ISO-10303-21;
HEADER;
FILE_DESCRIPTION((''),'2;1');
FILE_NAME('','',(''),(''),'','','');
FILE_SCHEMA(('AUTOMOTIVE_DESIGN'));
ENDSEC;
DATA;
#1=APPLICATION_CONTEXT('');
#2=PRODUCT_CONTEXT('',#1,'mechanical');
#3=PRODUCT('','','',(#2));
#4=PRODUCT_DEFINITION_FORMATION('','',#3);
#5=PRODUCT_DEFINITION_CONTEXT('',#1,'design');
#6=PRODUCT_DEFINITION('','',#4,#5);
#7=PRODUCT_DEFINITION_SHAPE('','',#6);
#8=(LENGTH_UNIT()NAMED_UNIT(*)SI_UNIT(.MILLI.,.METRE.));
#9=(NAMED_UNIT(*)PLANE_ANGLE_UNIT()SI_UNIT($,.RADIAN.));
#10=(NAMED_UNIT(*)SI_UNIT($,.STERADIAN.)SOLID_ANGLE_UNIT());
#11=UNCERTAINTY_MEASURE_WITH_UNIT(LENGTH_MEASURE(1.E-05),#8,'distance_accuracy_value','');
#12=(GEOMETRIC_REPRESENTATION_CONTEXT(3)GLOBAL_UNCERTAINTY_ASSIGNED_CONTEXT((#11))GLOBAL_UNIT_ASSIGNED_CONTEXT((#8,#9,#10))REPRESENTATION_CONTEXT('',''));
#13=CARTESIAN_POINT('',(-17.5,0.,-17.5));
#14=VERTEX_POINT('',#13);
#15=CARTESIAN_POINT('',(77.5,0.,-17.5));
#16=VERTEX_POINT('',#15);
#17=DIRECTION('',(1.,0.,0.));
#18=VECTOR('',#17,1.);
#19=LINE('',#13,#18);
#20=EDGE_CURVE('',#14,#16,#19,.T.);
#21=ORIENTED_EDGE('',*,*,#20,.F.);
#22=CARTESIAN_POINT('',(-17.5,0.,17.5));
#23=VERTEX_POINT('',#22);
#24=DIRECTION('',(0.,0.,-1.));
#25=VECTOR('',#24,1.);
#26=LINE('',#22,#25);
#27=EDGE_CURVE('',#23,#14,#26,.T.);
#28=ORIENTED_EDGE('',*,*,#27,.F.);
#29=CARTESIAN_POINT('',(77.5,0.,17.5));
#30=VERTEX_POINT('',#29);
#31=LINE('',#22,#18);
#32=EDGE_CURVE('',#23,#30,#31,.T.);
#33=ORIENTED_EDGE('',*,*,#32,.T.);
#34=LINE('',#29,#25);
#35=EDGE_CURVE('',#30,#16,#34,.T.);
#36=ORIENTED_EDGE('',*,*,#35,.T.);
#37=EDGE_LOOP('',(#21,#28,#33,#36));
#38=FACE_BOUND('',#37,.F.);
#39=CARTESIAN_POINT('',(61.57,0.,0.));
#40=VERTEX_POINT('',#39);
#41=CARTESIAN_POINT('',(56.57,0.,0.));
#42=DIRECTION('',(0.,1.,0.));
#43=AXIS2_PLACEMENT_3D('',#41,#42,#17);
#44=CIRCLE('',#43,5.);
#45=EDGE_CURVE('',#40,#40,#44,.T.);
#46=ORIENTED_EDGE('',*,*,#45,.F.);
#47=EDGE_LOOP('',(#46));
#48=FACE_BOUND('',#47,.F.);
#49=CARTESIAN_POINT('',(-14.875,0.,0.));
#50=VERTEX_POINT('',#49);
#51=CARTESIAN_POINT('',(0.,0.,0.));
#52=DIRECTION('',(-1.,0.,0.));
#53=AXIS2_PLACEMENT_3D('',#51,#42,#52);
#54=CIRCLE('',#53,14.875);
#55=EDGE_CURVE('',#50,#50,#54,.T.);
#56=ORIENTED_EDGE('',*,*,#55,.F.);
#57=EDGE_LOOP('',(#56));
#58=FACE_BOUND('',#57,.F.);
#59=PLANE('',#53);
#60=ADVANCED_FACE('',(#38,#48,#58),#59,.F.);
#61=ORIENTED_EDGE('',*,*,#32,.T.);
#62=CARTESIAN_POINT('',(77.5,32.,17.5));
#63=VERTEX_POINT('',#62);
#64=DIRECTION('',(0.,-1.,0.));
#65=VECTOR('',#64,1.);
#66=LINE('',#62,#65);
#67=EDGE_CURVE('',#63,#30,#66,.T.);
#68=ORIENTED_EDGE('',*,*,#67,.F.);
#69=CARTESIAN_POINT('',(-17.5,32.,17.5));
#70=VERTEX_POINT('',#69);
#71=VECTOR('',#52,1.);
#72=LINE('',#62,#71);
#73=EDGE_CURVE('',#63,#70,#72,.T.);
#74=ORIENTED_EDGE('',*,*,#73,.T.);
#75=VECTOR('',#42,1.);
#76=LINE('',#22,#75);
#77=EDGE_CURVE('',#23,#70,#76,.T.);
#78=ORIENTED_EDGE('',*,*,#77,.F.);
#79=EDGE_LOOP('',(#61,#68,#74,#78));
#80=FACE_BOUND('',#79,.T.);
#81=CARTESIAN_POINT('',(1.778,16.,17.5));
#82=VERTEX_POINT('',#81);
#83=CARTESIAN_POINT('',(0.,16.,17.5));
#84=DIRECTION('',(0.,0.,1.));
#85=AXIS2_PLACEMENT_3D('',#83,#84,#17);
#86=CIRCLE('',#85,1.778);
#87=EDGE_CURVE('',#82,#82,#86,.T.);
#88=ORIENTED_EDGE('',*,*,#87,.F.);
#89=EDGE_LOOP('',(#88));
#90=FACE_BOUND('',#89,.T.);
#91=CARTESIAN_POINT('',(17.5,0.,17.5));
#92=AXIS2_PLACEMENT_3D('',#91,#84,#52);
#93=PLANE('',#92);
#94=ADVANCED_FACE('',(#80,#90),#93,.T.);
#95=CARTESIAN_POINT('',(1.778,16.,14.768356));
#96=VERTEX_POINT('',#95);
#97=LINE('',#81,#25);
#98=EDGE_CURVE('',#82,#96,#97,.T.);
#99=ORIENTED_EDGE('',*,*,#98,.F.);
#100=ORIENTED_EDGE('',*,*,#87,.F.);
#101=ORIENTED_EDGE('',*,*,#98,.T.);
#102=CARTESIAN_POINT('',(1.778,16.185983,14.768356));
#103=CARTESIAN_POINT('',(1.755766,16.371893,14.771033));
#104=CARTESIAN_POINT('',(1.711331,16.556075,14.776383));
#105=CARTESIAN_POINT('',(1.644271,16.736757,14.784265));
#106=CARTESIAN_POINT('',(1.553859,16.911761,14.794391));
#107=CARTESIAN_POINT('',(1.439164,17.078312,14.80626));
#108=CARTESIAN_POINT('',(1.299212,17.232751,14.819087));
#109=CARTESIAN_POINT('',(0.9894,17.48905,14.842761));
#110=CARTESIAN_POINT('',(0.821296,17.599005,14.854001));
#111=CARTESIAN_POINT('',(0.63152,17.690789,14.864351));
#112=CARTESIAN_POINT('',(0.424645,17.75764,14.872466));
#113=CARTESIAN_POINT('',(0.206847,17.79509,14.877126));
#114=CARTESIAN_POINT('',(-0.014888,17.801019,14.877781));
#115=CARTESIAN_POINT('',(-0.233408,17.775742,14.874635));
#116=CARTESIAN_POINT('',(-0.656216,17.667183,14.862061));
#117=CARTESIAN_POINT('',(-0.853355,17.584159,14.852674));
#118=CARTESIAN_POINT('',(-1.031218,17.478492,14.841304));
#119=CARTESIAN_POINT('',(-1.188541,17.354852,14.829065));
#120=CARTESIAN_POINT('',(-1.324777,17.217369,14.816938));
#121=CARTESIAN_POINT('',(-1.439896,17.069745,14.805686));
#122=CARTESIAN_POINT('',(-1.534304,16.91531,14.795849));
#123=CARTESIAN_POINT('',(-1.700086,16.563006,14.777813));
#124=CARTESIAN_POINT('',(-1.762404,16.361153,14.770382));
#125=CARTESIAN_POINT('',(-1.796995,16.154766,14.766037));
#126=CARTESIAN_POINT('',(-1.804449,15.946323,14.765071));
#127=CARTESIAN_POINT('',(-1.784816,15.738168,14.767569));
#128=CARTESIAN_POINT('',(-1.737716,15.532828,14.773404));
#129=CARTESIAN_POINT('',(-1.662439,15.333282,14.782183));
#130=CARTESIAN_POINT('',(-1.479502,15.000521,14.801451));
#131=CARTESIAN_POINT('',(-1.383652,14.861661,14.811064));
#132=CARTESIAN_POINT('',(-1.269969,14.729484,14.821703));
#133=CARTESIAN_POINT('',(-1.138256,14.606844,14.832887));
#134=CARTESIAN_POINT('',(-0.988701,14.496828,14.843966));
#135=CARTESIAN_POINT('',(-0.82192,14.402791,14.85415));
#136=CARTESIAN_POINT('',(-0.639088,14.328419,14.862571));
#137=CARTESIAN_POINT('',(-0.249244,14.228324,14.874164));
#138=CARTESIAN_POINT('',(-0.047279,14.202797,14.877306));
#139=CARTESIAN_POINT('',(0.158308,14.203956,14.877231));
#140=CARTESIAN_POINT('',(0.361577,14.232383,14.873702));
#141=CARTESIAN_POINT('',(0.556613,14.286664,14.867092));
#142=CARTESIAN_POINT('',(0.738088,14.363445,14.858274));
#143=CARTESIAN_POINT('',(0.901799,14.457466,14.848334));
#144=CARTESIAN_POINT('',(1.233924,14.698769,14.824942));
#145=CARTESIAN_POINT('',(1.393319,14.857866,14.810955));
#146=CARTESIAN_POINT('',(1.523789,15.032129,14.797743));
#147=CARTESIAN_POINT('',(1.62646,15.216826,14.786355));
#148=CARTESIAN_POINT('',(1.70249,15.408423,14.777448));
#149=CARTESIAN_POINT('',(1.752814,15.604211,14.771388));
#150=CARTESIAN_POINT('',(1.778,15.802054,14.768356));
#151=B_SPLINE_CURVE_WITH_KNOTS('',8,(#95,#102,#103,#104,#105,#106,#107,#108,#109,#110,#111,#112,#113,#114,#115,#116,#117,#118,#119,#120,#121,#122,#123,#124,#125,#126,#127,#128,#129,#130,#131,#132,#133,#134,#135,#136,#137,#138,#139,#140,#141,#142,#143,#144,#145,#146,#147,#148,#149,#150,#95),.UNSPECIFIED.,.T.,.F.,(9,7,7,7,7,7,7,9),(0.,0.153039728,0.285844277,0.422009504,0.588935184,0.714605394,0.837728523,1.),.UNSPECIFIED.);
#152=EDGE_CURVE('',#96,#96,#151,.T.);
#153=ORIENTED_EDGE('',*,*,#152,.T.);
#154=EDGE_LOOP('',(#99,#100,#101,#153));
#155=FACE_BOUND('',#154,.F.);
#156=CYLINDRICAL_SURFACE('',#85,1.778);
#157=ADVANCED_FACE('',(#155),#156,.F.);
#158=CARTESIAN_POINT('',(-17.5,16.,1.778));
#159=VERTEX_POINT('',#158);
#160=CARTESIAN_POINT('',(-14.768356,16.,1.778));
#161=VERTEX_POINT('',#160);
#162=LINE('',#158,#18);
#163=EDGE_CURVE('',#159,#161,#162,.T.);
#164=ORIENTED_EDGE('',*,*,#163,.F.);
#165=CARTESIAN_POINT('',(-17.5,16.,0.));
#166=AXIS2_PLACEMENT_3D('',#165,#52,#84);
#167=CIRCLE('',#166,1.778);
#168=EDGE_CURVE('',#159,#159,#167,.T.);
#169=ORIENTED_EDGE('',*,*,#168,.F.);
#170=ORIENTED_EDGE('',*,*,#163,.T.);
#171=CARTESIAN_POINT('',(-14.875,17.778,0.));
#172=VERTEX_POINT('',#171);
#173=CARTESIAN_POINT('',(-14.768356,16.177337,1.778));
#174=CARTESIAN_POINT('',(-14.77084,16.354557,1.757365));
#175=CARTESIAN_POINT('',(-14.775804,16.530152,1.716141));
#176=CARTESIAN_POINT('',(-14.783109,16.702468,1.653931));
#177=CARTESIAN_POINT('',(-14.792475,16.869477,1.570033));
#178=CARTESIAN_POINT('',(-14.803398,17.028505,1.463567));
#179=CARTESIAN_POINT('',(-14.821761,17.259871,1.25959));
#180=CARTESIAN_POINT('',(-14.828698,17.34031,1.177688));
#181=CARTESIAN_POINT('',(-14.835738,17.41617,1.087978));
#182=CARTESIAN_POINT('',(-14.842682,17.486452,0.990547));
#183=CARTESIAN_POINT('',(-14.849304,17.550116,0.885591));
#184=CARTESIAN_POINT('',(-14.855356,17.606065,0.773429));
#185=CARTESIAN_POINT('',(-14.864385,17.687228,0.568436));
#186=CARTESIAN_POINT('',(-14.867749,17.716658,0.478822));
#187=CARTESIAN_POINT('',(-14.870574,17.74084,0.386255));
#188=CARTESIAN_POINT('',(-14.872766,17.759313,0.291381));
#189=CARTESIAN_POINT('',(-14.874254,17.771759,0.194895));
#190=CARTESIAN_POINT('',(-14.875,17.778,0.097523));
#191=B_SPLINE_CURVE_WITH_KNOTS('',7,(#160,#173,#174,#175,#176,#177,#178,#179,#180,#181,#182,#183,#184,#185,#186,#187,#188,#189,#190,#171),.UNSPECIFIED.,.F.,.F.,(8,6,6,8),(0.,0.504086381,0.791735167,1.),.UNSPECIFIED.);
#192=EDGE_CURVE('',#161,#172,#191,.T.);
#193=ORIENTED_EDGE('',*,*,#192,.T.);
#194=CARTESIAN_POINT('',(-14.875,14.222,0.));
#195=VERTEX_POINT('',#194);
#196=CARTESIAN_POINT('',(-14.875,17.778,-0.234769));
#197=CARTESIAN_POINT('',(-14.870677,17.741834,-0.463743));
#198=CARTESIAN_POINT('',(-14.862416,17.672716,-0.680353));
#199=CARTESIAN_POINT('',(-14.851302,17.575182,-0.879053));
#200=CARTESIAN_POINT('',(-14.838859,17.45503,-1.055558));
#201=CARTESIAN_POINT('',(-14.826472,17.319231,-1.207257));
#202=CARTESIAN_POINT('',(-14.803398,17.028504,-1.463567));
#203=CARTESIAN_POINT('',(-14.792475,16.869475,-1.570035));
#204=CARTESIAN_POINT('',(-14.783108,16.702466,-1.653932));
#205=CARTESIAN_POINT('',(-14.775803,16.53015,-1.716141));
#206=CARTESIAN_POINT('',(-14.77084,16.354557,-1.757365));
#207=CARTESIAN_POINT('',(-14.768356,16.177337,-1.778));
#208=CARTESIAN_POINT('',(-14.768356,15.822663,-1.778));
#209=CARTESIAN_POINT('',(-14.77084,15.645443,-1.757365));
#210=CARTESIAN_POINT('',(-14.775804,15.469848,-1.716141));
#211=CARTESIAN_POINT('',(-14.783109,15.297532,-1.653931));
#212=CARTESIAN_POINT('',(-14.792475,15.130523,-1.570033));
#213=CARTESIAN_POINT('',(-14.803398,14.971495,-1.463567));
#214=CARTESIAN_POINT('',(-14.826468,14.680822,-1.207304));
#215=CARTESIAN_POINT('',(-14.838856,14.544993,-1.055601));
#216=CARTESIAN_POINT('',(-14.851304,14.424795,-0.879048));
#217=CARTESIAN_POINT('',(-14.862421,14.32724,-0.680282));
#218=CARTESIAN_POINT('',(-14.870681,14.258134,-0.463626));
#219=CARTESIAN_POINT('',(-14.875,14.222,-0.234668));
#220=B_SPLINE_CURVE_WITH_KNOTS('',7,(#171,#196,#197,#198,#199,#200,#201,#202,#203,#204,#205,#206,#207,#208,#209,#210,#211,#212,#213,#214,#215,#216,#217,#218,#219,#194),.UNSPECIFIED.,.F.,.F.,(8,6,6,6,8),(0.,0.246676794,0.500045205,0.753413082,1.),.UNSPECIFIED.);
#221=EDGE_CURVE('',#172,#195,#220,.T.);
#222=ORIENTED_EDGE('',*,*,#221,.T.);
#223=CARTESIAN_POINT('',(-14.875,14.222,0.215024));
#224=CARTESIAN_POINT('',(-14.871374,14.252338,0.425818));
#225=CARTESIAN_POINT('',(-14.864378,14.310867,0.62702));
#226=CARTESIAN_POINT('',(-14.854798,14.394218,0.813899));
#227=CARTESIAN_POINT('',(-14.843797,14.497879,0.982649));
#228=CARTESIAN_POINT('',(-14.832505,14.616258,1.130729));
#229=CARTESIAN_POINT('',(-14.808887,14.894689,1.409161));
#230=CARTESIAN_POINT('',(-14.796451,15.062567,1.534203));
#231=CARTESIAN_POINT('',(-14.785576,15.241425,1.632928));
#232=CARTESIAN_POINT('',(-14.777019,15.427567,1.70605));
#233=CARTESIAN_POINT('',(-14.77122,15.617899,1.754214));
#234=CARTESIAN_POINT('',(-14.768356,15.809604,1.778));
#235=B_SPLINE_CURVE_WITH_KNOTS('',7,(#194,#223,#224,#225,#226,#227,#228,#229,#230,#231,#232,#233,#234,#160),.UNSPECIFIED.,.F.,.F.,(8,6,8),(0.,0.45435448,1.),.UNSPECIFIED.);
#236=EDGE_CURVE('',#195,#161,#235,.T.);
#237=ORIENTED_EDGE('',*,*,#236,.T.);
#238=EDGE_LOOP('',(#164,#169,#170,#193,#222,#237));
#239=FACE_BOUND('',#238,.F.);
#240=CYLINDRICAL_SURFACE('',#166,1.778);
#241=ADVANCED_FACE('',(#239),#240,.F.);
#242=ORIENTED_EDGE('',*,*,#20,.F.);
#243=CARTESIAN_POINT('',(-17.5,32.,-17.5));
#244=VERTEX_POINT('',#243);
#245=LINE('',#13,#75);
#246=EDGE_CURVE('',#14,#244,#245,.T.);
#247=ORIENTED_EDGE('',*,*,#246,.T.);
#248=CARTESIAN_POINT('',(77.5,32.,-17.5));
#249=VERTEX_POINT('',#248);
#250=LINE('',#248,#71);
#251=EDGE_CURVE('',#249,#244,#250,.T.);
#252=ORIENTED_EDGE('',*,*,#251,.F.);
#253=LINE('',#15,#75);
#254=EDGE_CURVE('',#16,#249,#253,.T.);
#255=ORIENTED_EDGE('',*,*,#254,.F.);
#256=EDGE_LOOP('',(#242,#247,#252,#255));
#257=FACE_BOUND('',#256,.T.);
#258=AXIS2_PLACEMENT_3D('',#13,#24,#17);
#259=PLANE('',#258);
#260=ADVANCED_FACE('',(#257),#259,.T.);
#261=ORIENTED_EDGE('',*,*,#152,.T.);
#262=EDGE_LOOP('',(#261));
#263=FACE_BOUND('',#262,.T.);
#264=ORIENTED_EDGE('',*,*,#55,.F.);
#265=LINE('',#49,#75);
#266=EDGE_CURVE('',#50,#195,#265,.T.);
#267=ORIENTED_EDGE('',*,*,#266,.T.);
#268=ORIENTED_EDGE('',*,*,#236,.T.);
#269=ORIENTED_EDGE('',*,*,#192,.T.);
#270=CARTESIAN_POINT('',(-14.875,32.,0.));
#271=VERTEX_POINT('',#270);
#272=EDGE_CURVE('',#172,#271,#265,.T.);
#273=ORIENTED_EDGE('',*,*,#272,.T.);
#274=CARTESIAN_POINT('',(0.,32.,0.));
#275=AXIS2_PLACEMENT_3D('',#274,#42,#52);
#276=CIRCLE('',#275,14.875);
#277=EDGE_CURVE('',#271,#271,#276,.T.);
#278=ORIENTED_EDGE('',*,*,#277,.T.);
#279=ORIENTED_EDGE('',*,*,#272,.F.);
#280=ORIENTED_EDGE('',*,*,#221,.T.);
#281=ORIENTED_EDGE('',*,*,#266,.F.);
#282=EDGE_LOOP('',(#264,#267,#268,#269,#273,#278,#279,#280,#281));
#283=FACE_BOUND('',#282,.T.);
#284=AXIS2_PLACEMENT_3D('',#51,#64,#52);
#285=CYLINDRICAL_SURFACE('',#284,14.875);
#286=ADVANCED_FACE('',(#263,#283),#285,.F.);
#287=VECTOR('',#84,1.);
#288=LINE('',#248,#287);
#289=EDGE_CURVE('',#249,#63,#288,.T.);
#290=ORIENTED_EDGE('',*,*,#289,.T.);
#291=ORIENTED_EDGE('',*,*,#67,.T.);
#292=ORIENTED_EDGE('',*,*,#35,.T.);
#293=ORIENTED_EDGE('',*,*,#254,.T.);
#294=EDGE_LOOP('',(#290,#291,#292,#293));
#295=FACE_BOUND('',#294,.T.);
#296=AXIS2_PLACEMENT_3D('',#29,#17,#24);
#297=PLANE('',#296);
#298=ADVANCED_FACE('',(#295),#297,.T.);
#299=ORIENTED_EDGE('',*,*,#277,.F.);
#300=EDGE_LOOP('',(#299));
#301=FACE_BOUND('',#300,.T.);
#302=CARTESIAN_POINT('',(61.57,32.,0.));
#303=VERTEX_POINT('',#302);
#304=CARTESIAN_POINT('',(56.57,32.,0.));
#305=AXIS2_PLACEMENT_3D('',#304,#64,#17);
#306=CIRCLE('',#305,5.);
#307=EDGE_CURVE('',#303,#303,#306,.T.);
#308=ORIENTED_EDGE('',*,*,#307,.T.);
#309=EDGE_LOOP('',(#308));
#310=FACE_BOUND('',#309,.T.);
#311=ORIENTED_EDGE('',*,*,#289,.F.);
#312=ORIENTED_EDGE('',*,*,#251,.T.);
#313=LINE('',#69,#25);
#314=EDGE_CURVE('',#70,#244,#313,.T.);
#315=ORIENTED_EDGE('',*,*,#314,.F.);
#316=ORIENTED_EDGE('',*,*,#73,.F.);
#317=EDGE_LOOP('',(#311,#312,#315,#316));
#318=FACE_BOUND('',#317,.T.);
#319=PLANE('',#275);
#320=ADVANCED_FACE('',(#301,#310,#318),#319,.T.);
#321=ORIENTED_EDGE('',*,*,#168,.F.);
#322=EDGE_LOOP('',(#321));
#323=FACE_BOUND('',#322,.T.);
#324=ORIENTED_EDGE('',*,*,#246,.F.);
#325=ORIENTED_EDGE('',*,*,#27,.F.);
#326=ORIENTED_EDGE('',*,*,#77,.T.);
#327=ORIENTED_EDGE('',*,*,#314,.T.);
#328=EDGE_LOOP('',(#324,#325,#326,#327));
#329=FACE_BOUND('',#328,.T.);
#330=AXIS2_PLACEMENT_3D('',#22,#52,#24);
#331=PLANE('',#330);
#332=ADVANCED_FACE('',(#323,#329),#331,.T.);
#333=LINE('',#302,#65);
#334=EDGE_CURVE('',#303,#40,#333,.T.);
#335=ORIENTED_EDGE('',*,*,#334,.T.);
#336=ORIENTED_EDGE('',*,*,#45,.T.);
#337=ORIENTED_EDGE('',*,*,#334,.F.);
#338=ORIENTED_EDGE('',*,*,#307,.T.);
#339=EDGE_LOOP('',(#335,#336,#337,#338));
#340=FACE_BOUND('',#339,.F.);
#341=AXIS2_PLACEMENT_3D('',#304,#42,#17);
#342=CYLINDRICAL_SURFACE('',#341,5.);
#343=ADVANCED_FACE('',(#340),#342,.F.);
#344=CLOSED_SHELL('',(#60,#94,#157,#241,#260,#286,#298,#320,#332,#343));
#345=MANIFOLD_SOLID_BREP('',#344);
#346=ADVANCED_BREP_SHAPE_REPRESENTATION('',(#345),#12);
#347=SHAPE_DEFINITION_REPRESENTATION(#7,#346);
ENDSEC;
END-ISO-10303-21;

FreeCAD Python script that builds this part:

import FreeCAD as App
import Part
import Sketcher
from FreeCAD import Vector
Q = App.Units.Quantity

doc = App.newDocument("Part")
body = doc.addObject("PartDesign::Body", "Body")

sketch1 = body.newObject("Sketcher::SketchObject", "Sketch")
sketch1.AttachmentSupport = (doc.getObject("XZ_Plane"), [""])
sketch1.MapMode = "FlatFace"
sketch1.addGeometry([
    Part.LineSegment(Vector(-18, 18, 0), Vector(18, 18, 0)),
    Part.LineSegment(Vector(18, 18, 0), Vector(18, -18, 0)),
    Part.LineSegment(Vector(18, -18, 0), Vector(-18, -18, 0)),
    Part.LineSegment(Vector(-18, -18, 0), Vector(-18, 18, 0)),
    Part.Circle(Vector(0, 0, 0), Vector(0, 0, 1), 15),
], False)
sketch1.addConstraint([
    Sketcher.Constraint("Coincident", 0, 2, 1, 1),
    Sketcher.Constraint("Coincident", 1, 2, 2, 1),
    Sketcher.Constraint("Coincident", 2, 2, 3, 1),
    Sketcher.Constraint("Coincident", 3, 2, 0, 1),
    Sketcher.Constraint("Horizontal", 0),
    Sketcher.Constraint("Vertical", 1),
    Sketcher.Constraint("Horizontal", 2),
    Sketcher.Constraint("Vertical", 3),
    Sketcher.Constraint("Coincident", 4, 3, -1, 1),
    Sketcher.Constraint("Symmetric", 0, 2, 2, 2, -1, 1),
    Sketcher.Constraint("Equal", 2, 1),
    Sketcher.Constraint("Diameter", 4, Q("29.75 mm")),
    Sketcher.Constraint("DistanceX", 0, 1, 0, 2, Q("35 mm")),
])
pad1 = body.newObject("PartDesign::Pad", "Pad")
pad1.Profile = sketch1
pad1.Length = 32
pad1.Reversed = True

sketch2 = body.newObject("Sketcher::SketchObject", "Sketch001")
sketch2.AttachmentSupport = (doc.getObject("YZ_Plane"), [""])
sketch2.MapMode = "FlatFace"
sketch2.AttachmentOffset = App.Placement(Vector(0, 0, 17.5), App.Rotation())
sketch2.addGeometry([
    Part.LineSegment(Vector(32, 18, 0), Vector(0, 18, 0)),
    Part.LineSegment(Vector(0, 18, 0), Vector(0, -18, 0)),
    Part.LineSegment(Vector(0, -18, 0), Vector(32, -18, 0)),
    Part.LineSegment(Vector(32, -18, 0), Vector(32, 18, 0)),
], False)
sketch2.addConstraint([
    Sketcher.Constraint("Coincident", 0, 2, 1, 1),
    Sketcher.Constraint("Coincident", 1, 2, 2, 1),
    Sketcher.Constraint("Coincident", 2, 2, 3, 1),
    Sketcher.Constraint("Coincident", 3, 2, 0, 1),
    Sketcher.Constraint("Horizontal", 0),
    Sketcher.Constraint("Vertical", 1),
    Sketcher.Constraint("Horizontal", 2),
    Sketcher.Constraint("Vertical", 3),
    Sketcher.Constraint("Symmetric", 0, 2, 1, 2, -1, 1),
    Sketcher.Constraint("DistanceX", 0, 2, 0, 1, Q("32 mm")),
    Sketcher.Constraint("DistanceY", 1, 2, 1, 1, Q("35 mm")),
])
pad2 = body.newObject("PartDesign::Pad", "Pad001")
pad2.Profile = sketch2
pad2.Length = 60

sketch3 = body.newObject("Sketcher::SketchObject", "Sketch002")
sketch3.AttachmentSupport = (doc.getObject("XZ_Plane"), [""])
sketch3.MapMode = "FlatFace"
sketch3.AttachmentOffset = App.Placement(Vector(0, 0, -32), App.Rotation())
sketch3.addGeometry(Part.Circle(Vector(57, 0, 0), Vector(0, 0, 1), 5), False)
sketch3.addConstraint([
    Sketcher.Constraint("PointOnObject", 0, 3, -1),
    Sketcher.Constraint("Diameter", 0, Q("10 mm")),
    Sketcher.Constraint("DistanceX", -1, 1, 0, 3, Q("56.57 mm")),
])
pocket1 = body.newObject("PartDesign::Pocket", "Pocket")
pocket1.Profile = sketch3
pocket1.Type = "ThroughAll"
pocket1.Reversed = True

sketch4 = body.newObject("Sketcher::SketchObject", "Sketch003")
sketch4.AttachmentSupport = (doc.getObject("XY_Plane"), [""])
sketch4.MapMode = "FlatFace"
sketch4.AttachmentOffset = App.Placement(Vector(0, 0, 17.5), App.Rotation())
sketch4.addGeometry(Part.Circle(Vector(0, 16, 0), Vector(0, 0, 1), 1.8), False)
sketch4.addConstraint([
    Sketcher.Constraint("PointOnObject", 0, 3, -2),
    Sketcher.Constraint("Diameter", 0, Q("3.556 mm")),
    Sketcher.Constraint("DistanceY", -1, 1, 0, 3, Q("16 mm")),
])
pocket2 = body.newObject("PartDesign::Pocket", "Pocket001")
pocket2.Profile = sketch4
pocket2.Length = 10

sketch5 = body.newObject("Sketcher::SketchObject", "Sketch004")
sketch5.AttachmentSupport = (doc.getObject("YZ_Plane"), [""])
sketch5.MapMode = "FlatFace"
sketch5.AttachmentOffset = App.Placement(Vector(0, 0, -17.5), App.Rotation())
sketch5.addGeometry(Part.Circle(Vector(16, 0, 0), Vector(0, 0, 1), 1.8), False)
sketch5.addConstraint([
    Sketcher.Constraint("PointOnObject", 0, 3, -1),
    Sketcher.Constraint("Diameter", 0, Q("3.556 mm")),
    Sketcher.Constraint("DistanceX", -1, 1, 0, 3, Q("16 mm")),
])
pocket3 = body.newObject("PartDesign::Pocket", "Pocket002")
pocket3.Profile = sketch5
pocket3.Length = 3.556
pocket3.Reversed = True

doc.recompute()
